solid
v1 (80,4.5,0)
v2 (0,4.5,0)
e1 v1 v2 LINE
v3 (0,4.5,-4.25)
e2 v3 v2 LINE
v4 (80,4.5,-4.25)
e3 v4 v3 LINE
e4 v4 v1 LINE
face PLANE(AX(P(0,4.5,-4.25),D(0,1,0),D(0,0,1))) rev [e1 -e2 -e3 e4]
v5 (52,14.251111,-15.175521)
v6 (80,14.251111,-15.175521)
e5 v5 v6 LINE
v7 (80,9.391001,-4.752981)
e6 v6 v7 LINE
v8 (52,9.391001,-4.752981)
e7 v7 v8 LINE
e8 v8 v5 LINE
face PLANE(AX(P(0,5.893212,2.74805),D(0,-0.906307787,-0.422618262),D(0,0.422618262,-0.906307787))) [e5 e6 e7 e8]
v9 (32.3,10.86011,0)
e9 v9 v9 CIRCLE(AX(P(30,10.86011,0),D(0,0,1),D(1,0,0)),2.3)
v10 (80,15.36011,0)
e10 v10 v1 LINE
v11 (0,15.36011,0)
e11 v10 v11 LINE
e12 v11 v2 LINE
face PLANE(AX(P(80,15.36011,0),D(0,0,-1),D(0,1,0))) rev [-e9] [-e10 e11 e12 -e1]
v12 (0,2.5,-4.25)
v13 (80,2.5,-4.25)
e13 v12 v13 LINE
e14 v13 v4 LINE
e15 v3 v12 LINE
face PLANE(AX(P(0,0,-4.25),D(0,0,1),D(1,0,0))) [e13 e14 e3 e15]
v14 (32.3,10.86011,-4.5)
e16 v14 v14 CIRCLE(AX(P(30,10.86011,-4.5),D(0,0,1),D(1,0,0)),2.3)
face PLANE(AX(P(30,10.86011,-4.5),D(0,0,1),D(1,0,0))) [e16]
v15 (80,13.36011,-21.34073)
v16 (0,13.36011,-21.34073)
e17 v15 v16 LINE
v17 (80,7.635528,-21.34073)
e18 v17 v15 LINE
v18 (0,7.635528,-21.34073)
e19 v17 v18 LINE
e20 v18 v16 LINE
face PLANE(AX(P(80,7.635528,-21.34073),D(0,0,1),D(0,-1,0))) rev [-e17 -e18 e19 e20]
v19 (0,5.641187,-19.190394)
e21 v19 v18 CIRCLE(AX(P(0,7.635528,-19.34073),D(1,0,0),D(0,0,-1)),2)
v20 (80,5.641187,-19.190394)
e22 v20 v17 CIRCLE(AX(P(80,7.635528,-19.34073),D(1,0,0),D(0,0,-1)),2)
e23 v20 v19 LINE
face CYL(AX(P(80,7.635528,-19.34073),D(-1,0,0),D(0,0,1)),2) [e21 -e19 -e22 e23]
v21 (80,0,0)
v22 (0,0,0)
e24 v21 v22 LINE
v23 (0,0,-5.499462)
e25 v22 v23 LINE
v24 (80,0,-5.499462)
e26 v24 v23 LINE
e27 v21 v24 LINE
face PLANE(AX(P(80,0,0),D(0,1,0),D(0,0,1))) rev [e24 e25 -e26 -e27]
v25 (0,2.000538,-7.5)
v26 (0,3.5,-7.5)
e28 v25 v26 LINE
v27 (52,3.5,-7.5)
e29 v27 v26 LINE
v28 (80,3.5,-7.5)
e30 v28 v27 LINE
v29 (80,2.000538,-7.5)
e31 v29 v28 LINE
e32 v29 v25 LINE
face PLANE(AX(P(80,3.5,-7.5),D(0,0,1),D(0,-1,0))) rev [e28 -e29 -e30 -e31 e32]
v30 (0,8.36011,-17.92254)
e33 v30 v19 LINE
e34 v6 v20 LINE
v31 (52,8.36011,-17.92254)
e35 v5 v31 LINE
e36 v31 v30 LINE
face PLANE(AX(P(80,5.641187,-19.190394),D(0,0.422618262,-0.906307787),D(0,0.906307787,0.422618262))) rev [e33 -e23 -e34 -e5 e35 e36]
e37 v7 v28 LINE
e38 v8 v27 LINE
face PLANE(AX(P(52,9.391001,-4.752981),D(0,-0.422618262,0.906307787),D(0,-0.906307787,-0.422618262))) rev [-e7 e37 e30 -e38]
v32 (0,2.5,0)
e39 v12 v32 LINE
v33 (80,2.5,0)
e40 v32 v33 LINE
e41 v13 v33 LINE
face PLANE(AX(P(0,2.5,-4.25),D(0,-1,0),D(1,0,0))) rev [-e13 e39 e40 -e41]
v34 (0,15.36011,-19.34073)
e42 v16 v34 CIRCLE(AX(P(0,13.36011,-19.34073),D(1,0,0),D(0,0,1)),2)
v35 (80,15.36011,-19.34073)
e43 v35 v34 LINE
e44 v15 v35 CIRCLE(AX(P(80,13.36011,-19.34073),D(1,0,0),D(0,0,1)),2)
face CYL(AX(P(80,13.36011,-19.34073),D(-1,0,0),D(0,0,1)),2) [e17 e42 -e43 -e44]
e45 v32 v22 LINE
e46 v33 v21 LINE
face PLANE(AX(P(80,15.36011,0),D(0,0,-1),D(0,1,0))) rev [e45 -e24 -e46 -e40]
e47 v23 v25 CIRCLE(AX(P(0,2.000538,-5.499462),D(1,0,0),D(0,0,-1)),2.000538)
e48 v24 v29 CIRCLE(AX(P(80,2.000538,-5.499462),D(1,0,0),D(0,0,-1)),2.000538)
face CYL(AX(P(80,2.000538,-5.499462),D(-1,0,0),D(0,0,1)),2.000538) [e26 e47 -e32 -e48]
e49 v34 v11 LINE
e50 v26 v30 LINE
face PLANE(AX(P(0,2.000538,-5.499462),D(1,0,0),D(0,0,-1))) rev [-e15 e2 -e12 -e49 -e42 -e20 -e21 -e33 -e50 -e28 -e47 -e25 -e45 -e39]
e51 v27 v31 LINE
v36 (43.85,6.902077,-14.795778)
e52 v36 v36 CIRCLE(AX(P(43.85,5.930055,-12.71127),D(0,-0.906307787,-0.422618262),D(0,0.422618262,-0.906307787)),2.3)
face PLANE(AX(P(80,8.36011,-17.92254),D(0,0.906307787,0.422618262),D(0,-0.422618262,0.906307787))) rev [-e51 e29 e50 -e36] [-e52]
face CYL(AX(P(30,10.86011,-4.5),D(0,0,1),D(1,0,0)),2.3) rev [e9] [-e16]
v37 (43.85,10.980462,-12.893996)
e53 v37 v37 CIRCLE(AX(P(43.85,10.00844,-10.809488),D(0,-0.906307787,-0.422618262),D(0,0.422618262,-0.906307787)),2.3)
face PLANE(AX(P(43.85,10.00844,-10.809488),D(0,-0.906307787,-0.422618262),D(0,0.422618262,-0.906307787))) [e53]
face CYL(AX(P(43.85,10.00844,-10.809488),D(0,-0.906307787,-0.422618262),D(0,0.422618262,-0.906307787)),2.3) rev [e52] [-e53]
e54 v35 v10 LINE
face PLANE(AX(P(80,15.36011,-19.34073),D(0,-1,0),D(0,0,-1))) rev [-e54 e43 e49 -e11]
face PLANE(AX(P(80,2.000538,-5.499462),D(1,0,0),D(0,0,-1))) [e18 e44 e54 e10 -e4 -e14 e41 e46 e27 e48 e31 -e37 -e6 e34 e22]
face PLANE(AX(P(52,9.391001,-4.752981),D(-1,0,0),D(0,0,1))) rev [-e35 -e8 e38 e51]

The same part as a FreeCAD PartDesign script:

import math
import FreeCAD as App
import Part
import Sketcher

V = App.Vector
Q = App.Units.Quantity


def add_polygon(sketch, points):
    """Adds a closed chain of lines whose ends are joined by coincident constraints."""
    first, n = sketch.GeometryCount, len(points)
    for a, b in zip(points, points[1:] + points[:1]):
        sketch.addGeometry(Part.LineSegment(App.Vector(*a, 0), App.Vector(*b, 0)), False)
    for i in range(n):
        sketch.addConstraint(Sketcher.Constraint("Coincident", first + i, 2, first + (i + 1) % n, 1))

doc = App.newDocument("Part")
params = doc.addObject("Spreadsheet::Sheet", "Params")
for row, (alias, value) in enumerate([
    ("sketch1_radius", "2 mm"),
    ("sketch1_length", "3 mm"),
    ("sketch1_length2", "11.5 mm"),
    ("pad1_length", "80 mm"),
    ("sketch2_diameter", "4.6 mm"),
    ("pocket1_length", "4.5 mm"),
    ("sketch3_width", "28 mm"),
    ("sketch3_height", "11.5 mm"),
    ("pocket2_length", "6.5 mm"),
    ("sketch4_diameter", "4.6 mm"),
    ("pocket3_length", "4.5 mm"),
    ("sketch5_width", "80 mm"),
    ("sketch5_height", "2 mm"),
    ("pocket4_length", "4.25 mm"),
], start=1):
    params.set(f"A{row}", alias)
    params.set(f"B{row}", "=" + value)
    params.setAlias(f"B{row}", alias)

body = doc.addObject("PartDesign::Body", "Body")

sketch1 = body.newObject("Sketcher::SketchObject", "Sketch")
sketch1.AttachmentSupport = (doc.getObject("YZ_Plane"), [""])
sketch1.MapMode = "FlatFace"
sketch1.addGeometry([
    Part.LineSegment(V(0, 0, 0), V(0, -5.499462, 0)),
    Part.ArcOfCircle(Part.Circle(V(2.000538, -5.499462, 0), V(0, 0, 1), 2.000538), math.radians(180), math.radians(270)),
    Part.LineSegment(V(2.000538, -7.5, 0), V(3.5, -7.5, 0)),
    Part.LineSegment(V(3.5, -7.5, 0), V(8.36011, -17.92254, 0)),
    Part.LineSegment(V(8.36011, -17.92254, 0), V(5.641187, -19.190394, 0)),
    Part.ArcOfCircle(Part.Circle(V(7.635528, -19.34073, 0), V(0, 0, 1), 2), math.radians(175.689148), math.radians(270)),
    Part.LineSegment(V(7.635528, -21.34073, 0), V(13.36011, -21.34073, 0)),
    Part.ArcOfCircle(Part.Circle(V(13.36011, -19.34073, 0), V(0, 0, 1), 2), math.radians(-90), math.radians(0)),
    Part.LineSegment(V(15.36011, -19.34073, 0), V(15.36011, 0, 0)),
    Part.LineSegment(V(15.36011, 0, 0), V(0, 0, 0)),
], False)
sketch1.addConstraint([
    Sketcher.Constraint("Tangent", 0, 2, 1, 1),
    Sketcher.Constraint("Tangent", 1, 2, 2, 1),
    Sketcher.Constraint("Coincident", 2, 2, 3, 1),
    Sketcher.Constraint("Coincident", 3, 2, 4, 1),
    Sketcher.Constraint("Coincident", 4, 2, 5, 1),
    Sketcher.Constraint("Tangent", 5, 2, 6, 1),
    Sketcher.Constraint("Tangent", 6, 2, 7, 1),
    Sketcher.Constraint("Tangent", 7, 2, 8, 1),
    Sketcher.Constraint("Coincident", 8, 2, 9, 1),
    Sketcher.Constraint("Coincident", 9, 2, 0, 1),
    Sketcher.Constraint("Vertical", 0),
    Sketcher.Constraint("Horizontal", 2),
    Sketcher.Constraint("Horizontal", 6),
    Sketcher.Constraint("Vertical", 8),
    Sketcher.Constraint("Horizontal", 9),
    Sketcher.Constraint("Coincident", 9, 2, -1, 1),
    Sketcher.Constraint("Equal", 5, 7),
    Sketcher.Constraint("Perpendicular", 3, 4),
    Sketcher.Constraint("Radius", 5, 2.0),
    Sketcher.Constraint("Angle", 3, Q("-65 deg")),
    Sketcher.Constraint("Distance", 4, 3.0),
    Sketcher.Constraint("DistanceX", 3, 2, 7, 3, 5.0),
    Sketcher.Constraint("Distance", 3, 11.5),
    Sketcher.Constraint("DistanceY", 1, 2, -1, 1, 7.5),
    Sketcher.Constraint("DistanceX", -1, 1, 2, 2, 3.5),
    Sketcher.Constraint("Radius", 1, 2.000538),
    Sketcher.Constraint("DistanceX", 6, 1, 6, 2, 5.724582),
])
sketch1.setExpression("Constraints[18]", "Params.sketch1_radius")
sketch1.setExpression("Constraints[20]", "Params.sketch1_length")
sketch1.setExpression("Constraints[22]", "Params.sketch1_length2")
pad1 = body.newObject("PartDesign::Pad", "Pad")
pad1.Profile = sketch1
pad1.setExpression("Length", "Params.pad1_length")

sketch2 = body.newObject("Sketcher::SketchObject", "Sketch001")
sketch2.Placement = App.Placement(V(0, 0.002212, 0.001031), App.Rotation(V(1, 0, 0), V(0, -0.422618262, 0.906307787), V(0, -0.906307787, -0.422618262), "ZXY"))
sketch2.addGeometry(Part.Circle(V(43.85, -14.026472, 0), V(0, 0, 1), 2.3), False)
sketch2.addConstraint([
    Sketcher.Constraint("Diameter", 0, 4.6),
    Sketcher.Constraint("DistanceX", -1, 1, 0, 3, 43.85),
    Sketcher.Constraint("DistanceY", 0, 3, -1, 1, 14.026472),
])
sketch2.setExpression("Constraints[0]", "Params.sketch2_diameter")
pocket1 = body.newObject("PartDesign::Pocket", "Pocket")
pocket1.Profile = sketch2
pocket1.setExpression("Length", "Params.pocket1_length")

sketch3 = body.newObject("Sketcher::SketchObject", "Sketch002")
sketch3.Placement = App.Placement(V(0, 0.002212, 0.001031), App.Rotation(V(1, 0, 0), V(0, -0.422618262, 0.906307787), V(0, -0.906307787, -0.422618262), "ZXY"))
add_polygon(sketch3, [(52, -8.276472), (52, -19.776472), (80, -19.776472), (80, -8.276472)])
sketch3.addConstraint([
    Sketcher.Constraint("Vertical", 0),
    Sketcher.Constraint("Horizontal", 1),
    Sketcher.Constraint("Vertical", 2),
    Sketcher.Constraint("Horizontal", 3),
    Sketcher.Constraint("DistanceX", 1, 1, 1, 2, 28.0),
    Sketcher.Constraint("DistanceY", 0, 2, 0, 1, 11.5),
    Sketcher.Constraint("DistanceX", -1, 1, 0, 2, 52.0),
    Sketcher.Constraint("DistanceY", 0, 2, -1, 1, 19.776472),
])
sketch3.setExpression("Constraints[8]", "Params.sketch3_width")
sketch3.setExpression("Constraints[9]", "Params.sketch3_height")
pocket2 = body.newObject("PartDesign::Pocket", "Pocket001")
pocket2.Profile = sketch3
pocket2.setExpression("Length", "Params.pocket2_length")

sketch4 = body.newObject("Sketcher::SketchObject", "Sketch003")
sketch4.AttachmentSupport = (doc.getObject("XY_Plane"), [""])
sketch4.MapMode = "FlatFace"
sketch4.addGeometry(Part.Circle(V(30, 10.86011, 0), V(0, 0, 1), 2.3), False)
sketch4.addConstraint([
    Sketcher.Constraint("Diameter", 0, 4.6),
    Sketcher.Constraint("DistanceX", -1, 1, 0, 3, 30.0),
    Sketcher.Constraint("DistanceY", -1, 1, 0, 3, 10.86011),
])
sketch4.setExpression("Constraints[0]", "Params.sketch4_diameter")
pocket3 = body.newObject("PartDesign::Pocket", "Pocket002")
pocket3.Profile = sketch4
pocket3.setExpression("Length", "Params.pocket3_length")

sketch5 = body.newObject("Sketcher::SketchObject", "Sketch004")
sketch5.AttachmentSupport = (doc.getObject("XY_Plane"), [""])
sketch5.MapMode = "FlatFace"
add_polygon(sketch5, [(0, 4.5), (0, 2.5), (80, 2.5), (80, 4.5)])
sketch5.addConstraint([
    Sketcher.Constraint("Vertical", 0),
    Sketcher.Constraint("Horizontal", 1),
    Sketcher.Constraint("Vertical", 2),
    Sketcher.Constraint("Horizontal", 3),
    Sketcher.Constraint("PointOnObject", 0, 2, -2),
    Sketcher.Constraint("DistanceX", 1, 1, 1, 2, 80.0),
    Sketcher.Constraint("DistanceY", 0, 2, 0, 1, 2.0),
    Sketcher.Constraint("DistanceY", -1, 1, 0, 2, 2.5),
])
sketch5.setExpression("Constraints[9]", "Params.sketch5_width")
sketch5.setExpression("Constraints[10]", "Params.sketch5_height")
pocket4 = body.newObject("PartDesign::Pocket", "Pocket003")
pocket4.Profile = sketch5
pocket4.setExpression("Length", "Params.pocket4_length")

doc.recompute()
